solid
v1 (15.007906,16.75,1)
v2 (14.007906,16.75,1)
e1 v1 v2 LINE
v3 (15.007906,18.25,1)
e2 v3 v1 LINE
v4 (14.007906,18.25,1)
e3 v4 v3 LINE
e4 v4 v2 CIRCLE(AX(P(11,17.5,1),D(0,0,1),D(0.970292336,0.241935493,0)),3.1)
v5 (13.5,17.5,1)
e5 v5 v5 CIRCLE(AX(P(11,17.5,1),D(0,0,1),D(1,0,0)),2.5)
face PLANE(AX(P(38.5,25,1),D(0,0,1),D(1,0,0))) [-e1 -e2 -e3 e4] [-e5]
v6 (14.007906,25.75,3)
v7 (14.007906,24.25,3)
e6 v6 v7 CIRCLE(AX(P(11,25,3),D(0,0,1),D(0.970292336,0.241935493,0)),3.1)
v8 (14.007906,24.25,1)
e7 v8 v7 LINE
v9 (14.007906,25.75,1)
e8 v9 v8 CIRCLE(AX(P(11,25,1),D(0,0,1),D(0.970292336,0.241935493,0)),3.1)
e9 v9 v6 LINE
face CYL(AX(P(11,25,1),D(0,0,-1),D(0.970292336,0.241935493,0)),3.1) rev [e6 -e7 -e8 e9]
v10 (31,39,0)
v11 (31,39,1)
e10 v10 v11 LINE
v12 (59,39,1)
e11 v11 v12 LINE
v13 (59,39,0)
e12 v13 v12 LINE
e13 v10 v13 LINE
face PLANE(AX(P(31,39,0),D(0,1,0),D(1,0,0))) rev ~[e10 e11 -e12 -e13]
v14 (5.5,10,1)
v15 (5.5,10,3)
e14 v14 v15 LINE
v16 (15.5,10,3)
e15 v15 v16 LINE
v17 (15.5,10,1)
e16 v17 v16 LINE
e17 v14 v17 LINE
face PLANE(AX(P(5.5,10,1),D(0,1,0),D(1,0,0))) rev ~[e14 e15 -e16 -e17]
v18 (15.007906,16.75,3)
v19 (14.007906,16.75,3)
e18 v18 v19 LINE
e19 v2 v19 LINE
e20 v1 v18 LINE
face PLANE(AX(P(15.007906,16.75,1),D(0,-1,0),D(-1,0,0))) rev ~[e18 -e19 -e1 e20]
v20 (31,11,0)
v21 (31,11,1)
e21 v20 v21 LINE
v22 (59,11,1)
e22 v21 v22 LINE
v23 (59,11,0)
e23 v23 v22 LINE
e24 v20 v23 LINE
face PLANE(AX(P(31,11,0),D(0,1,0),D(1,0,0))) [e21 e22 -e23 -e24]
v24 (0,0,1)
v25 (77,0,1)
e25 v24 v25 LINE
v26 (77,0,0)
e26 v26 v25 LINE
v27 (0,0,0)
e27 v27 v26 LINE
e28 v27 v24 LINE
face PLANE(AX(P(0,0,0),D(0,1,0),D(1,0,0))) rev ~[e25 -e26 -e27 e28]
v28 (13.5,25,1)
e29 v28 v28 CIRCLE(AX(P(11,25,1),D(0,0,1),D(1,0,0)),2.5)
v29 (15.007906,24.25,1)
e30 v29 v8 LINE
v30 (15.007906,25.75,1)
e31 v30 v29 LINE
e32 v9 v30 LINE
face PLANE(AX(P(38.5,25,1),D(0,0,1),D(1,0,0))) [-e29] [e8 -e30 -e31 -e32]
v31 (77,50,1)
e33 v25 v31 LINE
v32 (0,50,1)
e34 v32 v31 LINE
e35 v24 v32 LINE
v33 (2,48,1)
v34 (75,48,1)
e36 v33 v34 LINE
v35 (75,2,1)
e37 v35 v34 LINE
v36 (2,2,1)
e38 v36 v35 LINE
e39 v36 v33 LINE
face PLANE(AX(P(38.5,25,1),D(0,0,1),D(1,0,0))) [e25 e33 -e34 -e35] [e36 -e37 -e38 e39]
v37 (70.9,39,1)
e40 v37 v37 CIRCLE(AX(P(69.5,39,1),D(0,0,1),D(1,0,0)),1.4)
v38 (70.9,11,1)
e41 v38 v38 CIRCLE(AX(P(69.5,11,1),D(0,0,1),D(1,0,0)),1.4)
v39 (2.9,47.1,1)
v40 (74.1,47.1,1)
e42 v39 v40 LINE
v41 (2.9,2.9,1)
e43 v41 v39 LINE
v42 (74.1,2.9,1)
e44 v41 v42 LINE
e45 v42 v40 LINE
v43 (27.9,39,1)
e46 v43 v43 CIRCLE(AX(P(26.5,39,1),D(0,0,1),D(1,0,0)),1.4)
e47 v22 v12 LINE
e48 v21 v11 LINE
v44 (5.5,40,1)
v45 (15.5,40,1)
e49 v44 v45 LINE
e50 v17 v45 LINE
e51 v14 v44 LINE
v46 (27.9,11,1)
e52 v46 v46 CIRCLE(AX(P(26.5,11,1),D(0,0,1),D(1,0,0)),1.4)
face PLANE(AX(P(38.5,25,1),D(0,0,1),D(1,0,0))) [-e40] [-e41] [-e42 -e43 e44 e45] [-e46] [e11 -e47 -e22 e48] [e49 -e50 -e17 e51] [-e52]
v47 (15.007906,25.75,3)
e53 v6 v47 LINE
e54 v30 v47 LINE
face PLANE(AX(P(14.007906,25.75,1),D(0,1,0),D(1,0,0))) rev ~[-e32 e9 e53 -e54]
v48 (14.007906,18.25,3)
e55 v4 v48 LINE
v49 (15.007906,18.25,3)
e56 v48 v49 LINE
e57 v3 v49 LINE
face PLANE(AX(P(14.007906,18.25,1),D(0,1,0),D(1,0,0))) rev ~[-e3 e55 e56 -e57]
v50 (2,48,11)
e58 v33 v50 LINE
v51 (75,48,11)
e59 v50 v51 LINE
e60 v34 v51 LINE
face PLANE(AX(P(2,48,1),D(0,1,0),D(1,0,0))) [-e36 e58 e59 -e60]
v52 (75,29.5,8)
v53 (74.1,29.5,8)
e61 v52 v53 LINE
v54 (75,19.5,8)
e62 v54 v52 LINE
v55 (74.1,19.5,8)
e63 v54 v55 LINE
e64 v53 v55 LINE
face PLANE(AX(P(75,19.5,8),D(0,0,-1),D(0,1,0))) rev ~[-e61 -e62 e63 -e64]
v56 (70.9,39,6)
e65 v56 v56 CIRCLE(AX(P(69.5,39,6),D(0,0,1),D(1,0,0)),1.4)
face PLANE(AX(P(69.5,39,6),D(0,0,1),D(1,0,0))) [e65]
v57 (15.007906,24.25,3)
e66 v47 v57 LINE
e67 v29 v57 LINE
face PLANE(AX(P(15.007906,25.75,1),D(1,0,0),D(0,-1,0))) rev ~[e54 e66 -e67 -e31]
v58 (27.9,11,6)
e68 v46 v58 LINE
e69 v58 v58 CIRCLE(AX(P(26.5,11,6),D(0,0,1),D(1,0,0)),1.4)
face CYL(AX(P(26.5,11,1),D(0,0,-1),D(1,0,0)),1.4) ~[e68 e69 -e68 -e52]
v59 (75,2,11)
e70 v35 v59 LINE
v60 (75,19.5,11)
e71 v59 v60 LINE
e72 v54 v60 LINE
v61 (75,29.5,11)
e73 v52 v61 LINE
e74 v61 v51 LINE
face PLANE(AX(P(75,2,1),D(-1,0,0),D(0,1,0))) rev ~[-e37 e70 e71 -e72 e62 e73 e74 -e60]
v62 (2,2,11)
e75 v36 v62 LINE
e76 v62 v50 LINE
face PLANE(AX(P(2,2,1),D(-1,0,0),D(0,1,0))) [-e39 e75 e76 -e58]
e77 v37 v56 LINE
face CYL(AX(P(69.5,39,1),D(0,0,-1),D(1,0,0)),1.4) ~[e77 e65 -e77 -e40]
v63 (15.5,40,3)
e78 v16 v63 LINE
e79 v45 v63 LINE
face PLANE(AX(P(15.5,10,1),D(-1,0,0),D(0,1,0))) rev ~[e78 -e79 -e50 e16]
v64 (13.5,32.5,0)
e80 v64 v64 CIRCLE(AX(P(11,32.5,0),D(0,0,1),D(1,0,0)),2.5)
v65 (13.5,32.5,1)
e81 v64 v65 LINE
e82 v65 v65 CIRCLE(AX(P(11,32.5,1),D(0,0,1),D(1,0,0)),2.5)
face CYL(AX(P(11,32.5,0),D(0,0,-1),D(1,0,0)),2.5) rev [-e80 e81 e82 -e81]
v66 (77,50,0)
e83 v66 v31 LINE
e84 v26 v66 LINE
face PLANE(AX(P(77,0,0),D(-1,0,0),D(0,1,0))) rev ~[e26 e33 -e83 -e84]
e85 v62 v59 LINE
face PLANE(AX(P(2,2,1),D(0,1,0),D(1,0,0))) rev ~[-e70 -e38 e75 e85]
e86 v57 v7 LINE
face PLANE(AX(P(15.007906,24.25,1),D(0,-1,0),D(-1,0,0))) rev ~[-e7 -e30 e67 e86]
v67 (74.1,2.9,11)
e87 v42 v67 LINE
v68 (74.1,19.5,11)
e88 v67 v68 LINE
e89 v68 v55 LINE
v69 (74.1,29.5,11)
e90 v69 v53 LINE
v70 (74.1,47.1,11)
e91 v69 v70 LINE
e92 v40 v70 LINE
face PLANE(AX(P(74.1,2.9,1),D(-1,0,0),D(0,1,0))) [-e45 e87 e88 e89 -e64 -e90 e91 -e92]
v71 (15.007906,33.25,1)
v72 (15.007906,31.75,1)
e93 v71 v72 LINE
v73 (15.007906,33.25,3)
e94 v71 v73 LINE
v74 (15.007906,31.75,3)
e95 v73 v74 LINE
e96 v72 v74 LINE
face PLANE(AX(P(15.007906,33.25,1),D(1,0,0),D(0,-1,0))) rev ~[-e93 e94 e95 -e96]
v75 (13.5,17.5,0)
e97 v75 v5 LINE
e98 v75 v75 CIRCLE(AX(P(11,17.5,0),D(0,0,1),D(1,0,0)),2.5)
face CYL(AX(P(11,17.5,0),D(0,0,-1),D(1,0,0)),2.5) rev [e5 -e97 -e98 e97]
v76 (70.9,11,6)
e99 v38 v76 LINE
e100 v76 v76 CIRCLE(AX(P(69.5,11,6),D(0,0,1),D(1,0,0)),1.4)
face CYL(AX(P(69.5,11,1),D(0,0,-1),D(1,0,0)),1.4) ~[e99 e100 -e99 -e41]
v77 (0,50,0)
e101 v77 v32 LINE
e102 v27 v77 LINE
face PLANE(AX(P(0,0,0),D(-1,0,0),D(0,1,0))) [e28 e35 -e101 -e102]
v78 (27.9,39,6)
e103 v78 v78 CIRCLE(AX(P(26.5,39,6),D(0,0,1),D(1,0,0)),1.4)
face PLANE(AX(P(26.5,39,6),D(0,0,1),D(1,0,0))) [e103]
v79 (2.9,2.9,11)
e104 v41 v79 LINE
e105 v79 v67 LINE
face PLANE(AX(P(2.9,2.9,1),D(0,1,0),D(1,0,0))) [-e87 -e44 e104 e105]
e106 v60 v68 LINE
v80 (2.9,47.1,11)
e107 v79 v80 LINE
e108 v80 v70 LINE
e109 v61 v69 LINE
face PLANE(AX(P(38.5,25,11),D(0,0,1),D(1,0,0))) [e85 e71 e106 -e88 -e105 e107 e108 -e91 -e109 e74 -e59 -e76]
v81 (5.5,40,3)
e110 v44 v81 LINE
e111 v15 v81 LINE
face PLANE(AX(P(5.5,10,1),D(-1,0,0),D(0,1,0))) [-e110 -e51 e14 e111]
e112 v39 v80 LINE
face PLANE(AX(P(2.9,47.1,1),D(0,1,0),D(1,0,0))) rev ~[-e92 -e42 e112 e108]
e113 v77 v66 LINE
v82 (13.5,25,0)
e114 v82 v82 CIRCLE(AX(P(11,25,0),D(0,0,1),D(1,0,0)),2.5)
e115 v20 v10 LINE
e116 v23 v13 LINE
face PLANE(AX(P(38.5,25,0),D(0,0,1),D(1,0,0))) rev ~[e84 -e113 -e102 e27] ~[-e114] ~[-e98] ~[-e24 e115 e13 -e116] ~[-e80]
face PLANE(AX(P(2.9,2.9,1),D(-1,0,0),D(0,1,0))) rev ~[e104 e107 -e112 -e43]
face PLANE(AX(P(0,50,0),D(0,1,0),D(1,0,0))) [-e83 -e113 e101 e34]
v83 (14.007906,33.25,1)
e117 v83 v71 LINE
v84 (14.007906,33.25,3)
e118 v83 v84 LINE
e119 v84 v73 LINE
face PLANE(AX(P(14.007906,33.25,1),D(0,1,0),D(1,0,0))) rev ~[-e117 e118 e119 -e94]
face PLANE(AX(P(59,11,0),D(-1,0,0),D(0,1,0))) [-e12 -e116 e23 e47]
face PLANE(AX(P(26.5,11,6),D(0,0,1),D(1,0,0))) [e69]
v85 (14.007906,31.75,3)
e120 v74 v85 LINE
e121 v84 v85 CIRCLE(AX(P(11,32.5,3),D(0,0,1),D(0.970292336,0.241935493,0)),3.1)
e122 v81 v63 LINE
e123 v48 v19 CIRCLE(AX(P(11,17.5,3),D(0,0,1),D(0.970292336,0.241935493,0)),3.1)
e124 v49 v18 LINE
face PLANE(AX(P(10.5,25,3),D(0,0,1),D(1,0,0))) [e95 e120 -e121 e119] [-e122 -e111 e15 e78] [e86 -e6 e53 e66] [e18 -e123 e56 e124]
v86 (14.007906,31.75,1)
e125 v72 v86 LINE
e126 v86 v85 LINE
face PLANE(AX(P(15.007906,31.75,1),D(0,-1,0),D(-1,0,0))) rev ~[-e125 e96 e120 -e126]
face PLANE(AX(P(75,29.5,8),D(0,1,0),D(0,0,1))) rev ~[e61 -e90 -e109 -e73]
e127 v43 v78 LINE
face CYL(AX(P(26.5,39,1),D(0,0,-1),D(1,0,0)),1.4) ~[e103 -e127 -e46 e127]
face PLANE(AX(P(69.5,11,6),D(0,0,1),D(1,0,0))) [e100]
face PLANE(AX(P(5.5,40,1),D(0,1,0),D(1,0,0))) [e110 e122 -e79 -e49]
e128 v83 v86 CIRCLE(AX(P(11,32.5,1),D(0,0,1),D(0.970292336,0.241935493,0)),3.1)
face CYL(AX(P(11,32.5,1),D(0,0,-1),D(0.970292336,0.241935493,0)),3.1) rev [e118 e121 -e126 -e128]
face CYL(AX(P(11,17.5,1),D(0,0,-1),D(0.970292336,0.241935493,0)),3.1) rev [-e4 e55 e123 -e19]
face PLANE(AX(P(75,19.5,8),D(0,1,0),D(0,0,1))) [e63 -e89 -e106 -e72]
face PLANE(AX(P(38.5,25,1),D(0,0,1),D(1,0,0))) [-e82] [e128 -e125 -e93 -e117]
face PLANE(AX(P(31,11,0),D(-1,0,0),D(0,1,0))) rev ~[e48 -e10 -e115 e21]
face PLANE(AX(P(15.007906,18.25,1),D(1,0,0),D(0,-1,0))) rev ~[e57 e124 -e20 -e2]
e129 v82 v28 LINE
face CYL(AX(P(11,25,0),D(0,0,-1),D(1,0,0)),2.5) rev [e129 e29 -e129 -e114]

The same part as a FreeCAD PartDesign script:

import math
import FreeCAD as App
import Part
import Sketcher
from FreeCAD import Vector
Q = App.Units.Quantity

doc = App.newDocument("Part")
body = doc.addObject("PartDesign::Body", "Body")

# Sketch on XY plane
sketch1 = body.newObject("Sketcher::SketchObject", "Sketch")
sketch1.AttachmentSupport = (doc.getObject("XY_Plane"), [""])
sketch1.MapMode = "FlatFace"
sketch1.addGeometry([
    Part.LineSegment(Vector(0, 50, 0), Vector(0, 0, 0)),  # 0
    Part.LineSegment(Vector(0, 0, 0), Vector(77, 0, 0)),  # 1
    Part.LineSegment(Vector(77, 0, 0), Vector(77, 50, 0)),  # 2
    Part.LineSegment(Vector(77, 50, 0), Vector(0, 50, 0)),  # 3
    Part.Circle(Vector(11, 17.5, 0), Vector(0, 0, 1), 2.5),  # 4
    Part.Circle(Vector(11, 25, 0), Vector(0, 0, 1), 2.5),  # 5
    Part.Circle(Vector(11, 32.5, 0), Vector(0, 0, 1), 2.5),  # 6
    Part.LineSegment(Vector(59, 11, 0), Vector(31, 11, 0)),  # 7
    Part.LineSegment(Vector(31, 11, 0), Vector(31, 39, 0)),  # 8
    Part.LineSegment(Vector(31, 39, 0), Vector(59, 39, 0)),  # 9
    Part.LineSegment(Vector(59, 39, 0), Vector(59, 11, 0)),  # 10
], False)
sketch1.addConstraint([
    Sketcher.Constraint("Coincident", 0, 2, 1, 1),
    Sketcher.Constraint("Coincident", 1, 2, 2, 1),
    Sketcher.Constraint("Coincident", 2, 2, 3, 1),
    Sketcher.Constraint("Coincident", 3, 2, 0, 1),
    Sketcher.Constraint("Coincident", 7, 2, 8, 1),
    Sketcher.Constraint("Coincident", 8, 2, 9, 1),
    Sketcher.Constraint("Coincident", 9, 2, 10, 1),
    Sketcher.Constraint("Coincident", 10, 2, 7, 1),
    Sketcher.Constraint("Vertical", 0),
    Sketcher.Constraint("Horizontal", 1),
    Sketcher.Constraint("Vertical", 2),
    Sketcher.Constraint("Horizontal", 3),
    Sketcher.Constraint("Horizontal", 7),
    Sketcher.Constraint("Vertical", 8),
    Sketcher.Constraint("Horizontal", 9),
    Sketcher.Constraint("Vertical", 10),
    Sketcher.Constraint("Coincident", 0, 2, -1, 1),
    Sketcher.Constraint("Equal", 4, 5),
    Sketcher.Constraint("Equal", 5, 6),
    Sketcher.Constraint("Vertical", 4, 3, 5, 3),
    Sketcher.Constraint("Vertical", 5, 3, 6, 3),
    Sketcher.Constraint("Equal", 9, 8),
    Sketcher.Constraint("Diameter", 4, Q("5 mm")),
    Sketcher.Constraint("DistanceX", 1, 1, 1, 2, Q("77 mm")),
    Sketcher.Constraint("DistanceX", 7, 2, 7, 1, Q("28 mm")),
    Sketcher.Constraint("DistanceY", 0, 2, 0, 1, Q("50 mm")),
    Sketcher.Constraint("DistanceX", -1, 1, 4, 3, Q("11 mm")),
    Sketcher.Constraint("DistanceY", -1, 1, 5, 3, Q("25 mm")),
    Sketcher.Constraint("DistanceX", -1, 1, 7, 2, Q("31 mm")),
    Sketcher.Constraint("DistanceY", -1, 1, 7, 2, Q("11 mm")),
    Sketcher.Constraint("DistanceY", 4, 3, 6, 3, Q("15 mm")),
    Sketcher.Constraint("DistanceY", -1, 1, 4, 3, Q("17.5 mm")),
])
pad1 = body.newObject("PartDesign::Pad", "Pad")
pad1.Profile = sketch1
pad1.Length = 1

# Sketch on XY plane
sketch2 = body.newObject("Sketcher::SketchObject", "Sketch001")
sketch2.AttachmentSupport = (doc.getObject("XY_Plane"), [""])
sketch2.MapMode = "FlatFace"
sketch2.AttachmentOffset = App.Placement(Vector(0, 0, 1), App.Rotation())
sketch2.addGeometry([
    Part.Circle(Vector(26.5, 39, 0), Vector(0, 0, 1), 1.4),
    Part.Circle(Vector(69.5, 39, 0), Vector(0, 0, 1), 1.4),
    Part.Circle(Vector(69.5, 11, 0), Vector(0, 0, 1), 1.4),
    Part.Circle(Vector(26.5, 11, 0), Vector(0, 0, 1), 1.4),
], False)
sketch2.addConstraint([
    Sketcher.Constraint("Equal", 0, 1),
    Sketcher.Constraint("Equal", 1, 2),
    Sketcher.Constraint("Equal", 2, 3),
    Sketcher.Constraint("Horizontal", 0, 3, 1, 3),
    Sketcher.Constraint("Horizontal", 2, 3, 3, 3),
    Sketcher.Constraint("Vertical", 1, 3, 2, 3),
    Sketcher.Constraint("Vertical", 0, 3, 3, 3),
    Sketcher.Constraint("Diameter", 0, Q("2.8 mm")),
    Sketcher.Constraint("DistanceY", -1, 1, 0, 3, Q("39 mm")),
    Sketcher.Constraint("DistanceY", -1, 1, 2, 3, Q("11 mm")),
    Sketcher.Constraint("DistanceX", 0, 3, 1, 3, Q("43 mm")),
    Sketcher.Constraint("DistanceX", -1, 1, 0, 3, Q("26.5 mm")),
])
pad2 = body.newObject("PartDesign::Pad", "Pad001")
pad2.Profile = sketch2
pad2.Length = 5

# Sketch on XY plane
sketch3 = body.newObject("Sketcher::SketchObject", "Sketch002")
sketch3.AttachmentSupport = (doc.getObject("XY_Plane"), [""])
sketch3.MapMode = "FlatFace"
sketch3.AttachmentOffset = App.Placement(Vector(0, 0, 1), App.Rotation())
sketch3.addGeometry([
    Part.LineSegment(Vector(2, 48, 0), Vector(2, 2, 0)),  # 0
    Part.LineSegment(Vector(2, 2, 0), Vector(75, 2, 0)),  # 1
    Part.LineSegment(Vector(75, 2, 0), Vector(75, 48, 0)),  # 2
    Part.LineSegment(Vector(75, 48, 0), Vector(2, 48, 0)),  # 3
    Part.LineSegment(Vector(74, 3, 0), Vector(3, 3, 0)),  # 4
    Part.LineSegment(Vector(3, 3, 0), Vector(3, 47, 0)),  # 5
    Part.LineSegment(Vector(3, 47, 0), Vector(74, 47, 0)),  # 6
    Part.LineSegment(Vector(74, 47, 0), Vector(74, 3, 0)),  # 7
], False)
sketch3.addConstraint([
    Sketcher.Constraint("Coincident", 0, 2, 1, 1),
    Sketcher.Constraint("Coincident", 1, 2, 2, 1),
    Sketcher.Constraint("Coincident", 2, 2, 3, 1),
    Sketcher.Constraint("Coincident", 3, 2, 0, 1),
    Sketcher.Constraint("Coincident", 4, 2, 5, 1),
    Sketcher.Constraint("Coincident", 5, 2, 6, 1),
    Sketcher.Constraint("Coincident", 6, 2, 7, 1),
    Sketcher.Constraint("Coincident", 7, 2, 4, 1),
    Sketcher.Constraint("Vertical", 0),
    Sketcher.Constraint("Horizontal", 1),
    Sketcher.Constraint("Vertical", 2),
    Sketcher.Constraint("Horizontal", 3),
    Sketcher.Constraint("Horizontal", 4),
    Sketcher.Constraint("Vertical", 5),
    Sketcher.Constraint("Horizontal", 6),
    Sketcher.Constraint("Vertical", 7),
    Sketcher.Constraint("DistanceX", 1, 1, 1, 2, Q("73 mm")),
    Sketcher.Constraint("DistanceY", 0, 2, 0, 1, Q("46 mm")),
    Sketcher.Constraint("DistanceX", 4, 2, 4, 1, Q("71.2 mm")),
    Sketcher.Constraint("DistanceY", 5, 1, 5, 2, Q("44.2 mm")),
    Sketcher.Constraint("DistanceX", -1, 1, 0, 2, Q("2 mm")),
    Sketcher.Constraint("DistanceY", -1, 1, 0, 2, Q("2 mm")),
    Sketcher.Constraint("DistanceX", -1, 1, 4, 2, Q("2.9 mm")),
    Sketcher.Constraint("DistanceY", -1, 1, 4, 2, Q("2.9 mm")),
])
pad3 = body.newObject("PartDesign::Pad", "Pad002")
pad3.Profile = sketch3
pad3.Length = 10

# Sketch on YZ plane
sketch4 = body.newObject("Sketcher::SketchObject", "Sketch003")
sketch4.AttachmentSupport = (doc.getObject("YZ_Plane"), [""])
sketch4.MapMode = "FlatFace"
sketch4.AttachmentOffset = App.Placement(Vector(0, 0, 75), App.Rotation())
sketch4.addGeometry([
    Part.LineSegment(Vector(19.5, 11, 0), Vector(19.5, 8, 0)),
    Part.LineSegment(Vector(19.5, 8, 0), Vector(29.5, 8, 0)),
    Part.LineSegment(Vector(29.5, 8, 0), Vector(29.5, 11, 0)),
    Part.LineSegment(Vector(29.5, 11, 0), Vector(19.5, 11, 0)),
], False)
sketch4.addConstraint([
    Sketcher.Constraint("Coincident", 0, 2, 1, 1),
    Sketcher.Constraint("Coincident", 1, 2, 2, 1),
    Sketcher.Constraint("Coincident", 2, 2, 3, 1),
    Sketcher.Constraint("Coincident", 3, 2, 0, 1),
    Sketcher.Constraint("Vertical", 0),
    Sketcher.Constraint("Horizontal", 1),
    Sketcher.Constraint("Vertical", 2),
    Sketcher.Constraint("Horizontal", 3),
    Sketcher.Constraint("DistanceX", 1, 1, 1, 2, Q("10 mm")),
    Sketcher.Constraint("DistanceY", 0, 2, 0, 1, Q("3 mm")),
    Sketcher.Constraint("DistanceY", -1, 1, 0, 2, Q("8 mm")),
    Sketcher.Constraint("DistanceX", -1, 1, 0, 2, Q("19.5 mm")),
])
pocket1 = body.newObject("PartDesign::Pocket", "Pocket")
pocket1.Profile = sketch4
pocket1.Length = 5

# Sketch on XY plane
sketch5 = body.newObject("Sketcher::SketchObject", "Sketch004")
sketch5.AttachmentSupport = (doc.getObject("XY_Plane"), [""])
sketch5.MapMode = "FlatFace"
sketch5.AttachmentOffset = App.Placement(Vector(0, 0, 1), App.Rotation())
sketch5.addGeometry([
    Part.LineSegment(Vector(5.5, 40, 0), Vector(5.5, 10, 0)),  # 0
    Part.LineSegment(Vector(5.5, 10, 0), Vector(15.5, 10, 0)),  # 1
    Part.LineSegment(Vector(15.5, 10, 0), Vector(15.5, 40, 0)),  # 2
    Part.LineSegment(Vector(15.5, 40, 0), Vector(5.5, 40, 0)),  # 3
    Part.ArcOfCircle(Part.Circle(Vector(11, 17.5, 0), Vector(0, 0, 1), 3.1), math.radians(14), math.radians(346)),  # 4
    Part.LineSegment(Vector(14, 18.2, 0), Vector(15, 18.2, 0)),  # 5
    Part.LineSegment(Vector(15, 18.2, 0), Vector(15, 16.8, 0)),  # 6
    Part.LineSegment(Vector(15, 16.8, 0), Vector(14, 16.8, 0)),  # 7
    Part.ArcOfCircle(Part.Circle(Vector(11, 25, 0), Vector(0, 0, 1), 3.1), math.radians(14), math.radians(346)),  # 8
    Part.LineSegment(Vector(14, 25.8, 0), Vector(15, 25.8, 0)),  # 9
    Part.LineSegment(Vector(15, 25.8, 0), Vector(15, 24.2, 0)),  # 10
    Part.LineSegment(Vector(15, 24.2, 0), Vector(14, 24.2, 0)),  # 11
    Part.ArcOfCircle(Part.Circle(Vector(11, 32.5, 0), Vector(0, 0, 1), 3.1), math.radians(14), math.radians(346)),  # 12
    Part.LineSegment(Vector(14, 33.2, 0), Vector(15, 33.2, 0)),  # 13
    Part.LineSegment(Vector(15, 33.2, 0), Vector(15, 31.8, 0)),  # 14
    Part.LineSegment(Vector(15, 31.8, 0), Vector(14, 31.8, 0)),  # 15
], False)
sketch5.addConstraint([
    Sketcher.Constraint("Coincident", 0, 2, 1, 1),
    Sketcher.Constraint("Coincident", 1, 2, 2, 1),
    Sketcher.Constraint("Coincident", 2, 2, 3, 1),
    Sketcher.Constraint("Coincident", 3, 2, 0, 1),
    Sketcher.Constraint("Coincident", 4, 1, 5, 1),
    Sketcher.Constraint("Coincident", 5, 2, 6, 1),
    Sketcher.Constraint("Coincident", 6, 2, 7, 1),
    Sketcher.Constraint("Coincident", 7, 2, 4, 2),
    Sketcher.Constraint("Coincident", 8, 1, 9, 1),
    Sketcher.Constraint("Coincident", 9, 2, 10, 1),
    Sketcher.Constraint("Coincident", 10, 2, 11, 1),
    Sketcher.Constraint("Coincident", 11, 2, 8, 2),
    Sketcher.Constraint("Coincident", 12, 1, 13, 1),
    Sketcher.Constraint("Coincident", 13, 2, 14, 1),
    Sketcher.Constraint("Coincident", 14, 2, 15, 1),
    Sketcher.Constraint("Coincident", 15, 2, 12, 2),
    Sketcher.Constraint("Vertical", 0),
    Sketcher.Constraint("Horizontal", 1),
    Sketcher.Constraint("Vertical", 2),
    Sketcher.Constraint("Horizontal", 3),
    Sketcher.Constraint("Horizontal", 5),
    Sketcher.Constraint("Vertical", 6),
    Sketcher.Constraint("Horizontal", 7),
    Sketcher.Constraint("Horizontal", 9),
    Sketcher.Constraint("Vertical", 10),
    Sketcher.Constraint("Horizontal", 11),
    Sketcher.Constraint("Horizontal", 13),
    Sketcher.Constraint("Vertical", 14),
    Sketcher.Constraint("Horizontal", 15),
    Sketcher.Constraint("Equal", 4, 8),
    Sketcher.Constraint("Equal", 8, 12),
    Sketcher.Constraint("Vertical", 4, 3, 8, 3),
    Sketcher.Constraint("Vertical", 8, 3, 12, 3),
    Sketcher.Constraint("Vertical", 4, 1, 7, 2),
    Sketcher.Constraint("Vertical", 7, 2, 8, 1),
    Sketcher.Constraint("Vertical", 6, 2, 9, 2),
    Sketcher.Constraint("Vertical", 8, 1, 11, 2),
    Sketcher.Constraint("Vertical", 11, 2, 12, 1),
    Sketcher.Constraint("Vertical", 10, 2, 13, 2),
    Sketcher.Constraint("Vertical", 12, 1, 15, 2),
    Sketcher.Constraint("Radius", 4, Q("3.1 mm")),
    Sketcher.Constraint("DistanceX", 1, 1, 1, 2, Q("10 mm")),
    Sketcher.Constraint("DistanceX", 5, 1, 5, 2, Q("1 mm")),
    Sketcher.Constraint("DistanceY", 0, 2, 0, 1, Q("30 mm")),
    Sketcher.Constraint("DistanceY", 6, 2, 6, 1, Q("1.5 mm")),
    Sketcher.Constraint("DistanceX", -1, 1, 4, 3, Q("11 mm")),
    Sketcher.Constraint("DistanceY", -1, 1, 8, 3, Q("25 mm")),
    Sketcher.Constraint("DistanceY", -1, 1, 0, 2, Q("10 mm")),
    Sketcher.Constraint("DistanceY", 4, 3, 12, 3, Q("15 mm")),
    Sketcher.Constraint("DistanceY", 5, 2, 10, 2, Q("6 mm")),
    Sketcher.Constraint("DistanceX", -1, 1, 0, 2, Q("5.5 mm")),
])
pad4 = body.newObject("PartDesign::Pad", "Pad003")
pad4.Profile = sketch5
pad4.Length = 2

doc.recompute()
